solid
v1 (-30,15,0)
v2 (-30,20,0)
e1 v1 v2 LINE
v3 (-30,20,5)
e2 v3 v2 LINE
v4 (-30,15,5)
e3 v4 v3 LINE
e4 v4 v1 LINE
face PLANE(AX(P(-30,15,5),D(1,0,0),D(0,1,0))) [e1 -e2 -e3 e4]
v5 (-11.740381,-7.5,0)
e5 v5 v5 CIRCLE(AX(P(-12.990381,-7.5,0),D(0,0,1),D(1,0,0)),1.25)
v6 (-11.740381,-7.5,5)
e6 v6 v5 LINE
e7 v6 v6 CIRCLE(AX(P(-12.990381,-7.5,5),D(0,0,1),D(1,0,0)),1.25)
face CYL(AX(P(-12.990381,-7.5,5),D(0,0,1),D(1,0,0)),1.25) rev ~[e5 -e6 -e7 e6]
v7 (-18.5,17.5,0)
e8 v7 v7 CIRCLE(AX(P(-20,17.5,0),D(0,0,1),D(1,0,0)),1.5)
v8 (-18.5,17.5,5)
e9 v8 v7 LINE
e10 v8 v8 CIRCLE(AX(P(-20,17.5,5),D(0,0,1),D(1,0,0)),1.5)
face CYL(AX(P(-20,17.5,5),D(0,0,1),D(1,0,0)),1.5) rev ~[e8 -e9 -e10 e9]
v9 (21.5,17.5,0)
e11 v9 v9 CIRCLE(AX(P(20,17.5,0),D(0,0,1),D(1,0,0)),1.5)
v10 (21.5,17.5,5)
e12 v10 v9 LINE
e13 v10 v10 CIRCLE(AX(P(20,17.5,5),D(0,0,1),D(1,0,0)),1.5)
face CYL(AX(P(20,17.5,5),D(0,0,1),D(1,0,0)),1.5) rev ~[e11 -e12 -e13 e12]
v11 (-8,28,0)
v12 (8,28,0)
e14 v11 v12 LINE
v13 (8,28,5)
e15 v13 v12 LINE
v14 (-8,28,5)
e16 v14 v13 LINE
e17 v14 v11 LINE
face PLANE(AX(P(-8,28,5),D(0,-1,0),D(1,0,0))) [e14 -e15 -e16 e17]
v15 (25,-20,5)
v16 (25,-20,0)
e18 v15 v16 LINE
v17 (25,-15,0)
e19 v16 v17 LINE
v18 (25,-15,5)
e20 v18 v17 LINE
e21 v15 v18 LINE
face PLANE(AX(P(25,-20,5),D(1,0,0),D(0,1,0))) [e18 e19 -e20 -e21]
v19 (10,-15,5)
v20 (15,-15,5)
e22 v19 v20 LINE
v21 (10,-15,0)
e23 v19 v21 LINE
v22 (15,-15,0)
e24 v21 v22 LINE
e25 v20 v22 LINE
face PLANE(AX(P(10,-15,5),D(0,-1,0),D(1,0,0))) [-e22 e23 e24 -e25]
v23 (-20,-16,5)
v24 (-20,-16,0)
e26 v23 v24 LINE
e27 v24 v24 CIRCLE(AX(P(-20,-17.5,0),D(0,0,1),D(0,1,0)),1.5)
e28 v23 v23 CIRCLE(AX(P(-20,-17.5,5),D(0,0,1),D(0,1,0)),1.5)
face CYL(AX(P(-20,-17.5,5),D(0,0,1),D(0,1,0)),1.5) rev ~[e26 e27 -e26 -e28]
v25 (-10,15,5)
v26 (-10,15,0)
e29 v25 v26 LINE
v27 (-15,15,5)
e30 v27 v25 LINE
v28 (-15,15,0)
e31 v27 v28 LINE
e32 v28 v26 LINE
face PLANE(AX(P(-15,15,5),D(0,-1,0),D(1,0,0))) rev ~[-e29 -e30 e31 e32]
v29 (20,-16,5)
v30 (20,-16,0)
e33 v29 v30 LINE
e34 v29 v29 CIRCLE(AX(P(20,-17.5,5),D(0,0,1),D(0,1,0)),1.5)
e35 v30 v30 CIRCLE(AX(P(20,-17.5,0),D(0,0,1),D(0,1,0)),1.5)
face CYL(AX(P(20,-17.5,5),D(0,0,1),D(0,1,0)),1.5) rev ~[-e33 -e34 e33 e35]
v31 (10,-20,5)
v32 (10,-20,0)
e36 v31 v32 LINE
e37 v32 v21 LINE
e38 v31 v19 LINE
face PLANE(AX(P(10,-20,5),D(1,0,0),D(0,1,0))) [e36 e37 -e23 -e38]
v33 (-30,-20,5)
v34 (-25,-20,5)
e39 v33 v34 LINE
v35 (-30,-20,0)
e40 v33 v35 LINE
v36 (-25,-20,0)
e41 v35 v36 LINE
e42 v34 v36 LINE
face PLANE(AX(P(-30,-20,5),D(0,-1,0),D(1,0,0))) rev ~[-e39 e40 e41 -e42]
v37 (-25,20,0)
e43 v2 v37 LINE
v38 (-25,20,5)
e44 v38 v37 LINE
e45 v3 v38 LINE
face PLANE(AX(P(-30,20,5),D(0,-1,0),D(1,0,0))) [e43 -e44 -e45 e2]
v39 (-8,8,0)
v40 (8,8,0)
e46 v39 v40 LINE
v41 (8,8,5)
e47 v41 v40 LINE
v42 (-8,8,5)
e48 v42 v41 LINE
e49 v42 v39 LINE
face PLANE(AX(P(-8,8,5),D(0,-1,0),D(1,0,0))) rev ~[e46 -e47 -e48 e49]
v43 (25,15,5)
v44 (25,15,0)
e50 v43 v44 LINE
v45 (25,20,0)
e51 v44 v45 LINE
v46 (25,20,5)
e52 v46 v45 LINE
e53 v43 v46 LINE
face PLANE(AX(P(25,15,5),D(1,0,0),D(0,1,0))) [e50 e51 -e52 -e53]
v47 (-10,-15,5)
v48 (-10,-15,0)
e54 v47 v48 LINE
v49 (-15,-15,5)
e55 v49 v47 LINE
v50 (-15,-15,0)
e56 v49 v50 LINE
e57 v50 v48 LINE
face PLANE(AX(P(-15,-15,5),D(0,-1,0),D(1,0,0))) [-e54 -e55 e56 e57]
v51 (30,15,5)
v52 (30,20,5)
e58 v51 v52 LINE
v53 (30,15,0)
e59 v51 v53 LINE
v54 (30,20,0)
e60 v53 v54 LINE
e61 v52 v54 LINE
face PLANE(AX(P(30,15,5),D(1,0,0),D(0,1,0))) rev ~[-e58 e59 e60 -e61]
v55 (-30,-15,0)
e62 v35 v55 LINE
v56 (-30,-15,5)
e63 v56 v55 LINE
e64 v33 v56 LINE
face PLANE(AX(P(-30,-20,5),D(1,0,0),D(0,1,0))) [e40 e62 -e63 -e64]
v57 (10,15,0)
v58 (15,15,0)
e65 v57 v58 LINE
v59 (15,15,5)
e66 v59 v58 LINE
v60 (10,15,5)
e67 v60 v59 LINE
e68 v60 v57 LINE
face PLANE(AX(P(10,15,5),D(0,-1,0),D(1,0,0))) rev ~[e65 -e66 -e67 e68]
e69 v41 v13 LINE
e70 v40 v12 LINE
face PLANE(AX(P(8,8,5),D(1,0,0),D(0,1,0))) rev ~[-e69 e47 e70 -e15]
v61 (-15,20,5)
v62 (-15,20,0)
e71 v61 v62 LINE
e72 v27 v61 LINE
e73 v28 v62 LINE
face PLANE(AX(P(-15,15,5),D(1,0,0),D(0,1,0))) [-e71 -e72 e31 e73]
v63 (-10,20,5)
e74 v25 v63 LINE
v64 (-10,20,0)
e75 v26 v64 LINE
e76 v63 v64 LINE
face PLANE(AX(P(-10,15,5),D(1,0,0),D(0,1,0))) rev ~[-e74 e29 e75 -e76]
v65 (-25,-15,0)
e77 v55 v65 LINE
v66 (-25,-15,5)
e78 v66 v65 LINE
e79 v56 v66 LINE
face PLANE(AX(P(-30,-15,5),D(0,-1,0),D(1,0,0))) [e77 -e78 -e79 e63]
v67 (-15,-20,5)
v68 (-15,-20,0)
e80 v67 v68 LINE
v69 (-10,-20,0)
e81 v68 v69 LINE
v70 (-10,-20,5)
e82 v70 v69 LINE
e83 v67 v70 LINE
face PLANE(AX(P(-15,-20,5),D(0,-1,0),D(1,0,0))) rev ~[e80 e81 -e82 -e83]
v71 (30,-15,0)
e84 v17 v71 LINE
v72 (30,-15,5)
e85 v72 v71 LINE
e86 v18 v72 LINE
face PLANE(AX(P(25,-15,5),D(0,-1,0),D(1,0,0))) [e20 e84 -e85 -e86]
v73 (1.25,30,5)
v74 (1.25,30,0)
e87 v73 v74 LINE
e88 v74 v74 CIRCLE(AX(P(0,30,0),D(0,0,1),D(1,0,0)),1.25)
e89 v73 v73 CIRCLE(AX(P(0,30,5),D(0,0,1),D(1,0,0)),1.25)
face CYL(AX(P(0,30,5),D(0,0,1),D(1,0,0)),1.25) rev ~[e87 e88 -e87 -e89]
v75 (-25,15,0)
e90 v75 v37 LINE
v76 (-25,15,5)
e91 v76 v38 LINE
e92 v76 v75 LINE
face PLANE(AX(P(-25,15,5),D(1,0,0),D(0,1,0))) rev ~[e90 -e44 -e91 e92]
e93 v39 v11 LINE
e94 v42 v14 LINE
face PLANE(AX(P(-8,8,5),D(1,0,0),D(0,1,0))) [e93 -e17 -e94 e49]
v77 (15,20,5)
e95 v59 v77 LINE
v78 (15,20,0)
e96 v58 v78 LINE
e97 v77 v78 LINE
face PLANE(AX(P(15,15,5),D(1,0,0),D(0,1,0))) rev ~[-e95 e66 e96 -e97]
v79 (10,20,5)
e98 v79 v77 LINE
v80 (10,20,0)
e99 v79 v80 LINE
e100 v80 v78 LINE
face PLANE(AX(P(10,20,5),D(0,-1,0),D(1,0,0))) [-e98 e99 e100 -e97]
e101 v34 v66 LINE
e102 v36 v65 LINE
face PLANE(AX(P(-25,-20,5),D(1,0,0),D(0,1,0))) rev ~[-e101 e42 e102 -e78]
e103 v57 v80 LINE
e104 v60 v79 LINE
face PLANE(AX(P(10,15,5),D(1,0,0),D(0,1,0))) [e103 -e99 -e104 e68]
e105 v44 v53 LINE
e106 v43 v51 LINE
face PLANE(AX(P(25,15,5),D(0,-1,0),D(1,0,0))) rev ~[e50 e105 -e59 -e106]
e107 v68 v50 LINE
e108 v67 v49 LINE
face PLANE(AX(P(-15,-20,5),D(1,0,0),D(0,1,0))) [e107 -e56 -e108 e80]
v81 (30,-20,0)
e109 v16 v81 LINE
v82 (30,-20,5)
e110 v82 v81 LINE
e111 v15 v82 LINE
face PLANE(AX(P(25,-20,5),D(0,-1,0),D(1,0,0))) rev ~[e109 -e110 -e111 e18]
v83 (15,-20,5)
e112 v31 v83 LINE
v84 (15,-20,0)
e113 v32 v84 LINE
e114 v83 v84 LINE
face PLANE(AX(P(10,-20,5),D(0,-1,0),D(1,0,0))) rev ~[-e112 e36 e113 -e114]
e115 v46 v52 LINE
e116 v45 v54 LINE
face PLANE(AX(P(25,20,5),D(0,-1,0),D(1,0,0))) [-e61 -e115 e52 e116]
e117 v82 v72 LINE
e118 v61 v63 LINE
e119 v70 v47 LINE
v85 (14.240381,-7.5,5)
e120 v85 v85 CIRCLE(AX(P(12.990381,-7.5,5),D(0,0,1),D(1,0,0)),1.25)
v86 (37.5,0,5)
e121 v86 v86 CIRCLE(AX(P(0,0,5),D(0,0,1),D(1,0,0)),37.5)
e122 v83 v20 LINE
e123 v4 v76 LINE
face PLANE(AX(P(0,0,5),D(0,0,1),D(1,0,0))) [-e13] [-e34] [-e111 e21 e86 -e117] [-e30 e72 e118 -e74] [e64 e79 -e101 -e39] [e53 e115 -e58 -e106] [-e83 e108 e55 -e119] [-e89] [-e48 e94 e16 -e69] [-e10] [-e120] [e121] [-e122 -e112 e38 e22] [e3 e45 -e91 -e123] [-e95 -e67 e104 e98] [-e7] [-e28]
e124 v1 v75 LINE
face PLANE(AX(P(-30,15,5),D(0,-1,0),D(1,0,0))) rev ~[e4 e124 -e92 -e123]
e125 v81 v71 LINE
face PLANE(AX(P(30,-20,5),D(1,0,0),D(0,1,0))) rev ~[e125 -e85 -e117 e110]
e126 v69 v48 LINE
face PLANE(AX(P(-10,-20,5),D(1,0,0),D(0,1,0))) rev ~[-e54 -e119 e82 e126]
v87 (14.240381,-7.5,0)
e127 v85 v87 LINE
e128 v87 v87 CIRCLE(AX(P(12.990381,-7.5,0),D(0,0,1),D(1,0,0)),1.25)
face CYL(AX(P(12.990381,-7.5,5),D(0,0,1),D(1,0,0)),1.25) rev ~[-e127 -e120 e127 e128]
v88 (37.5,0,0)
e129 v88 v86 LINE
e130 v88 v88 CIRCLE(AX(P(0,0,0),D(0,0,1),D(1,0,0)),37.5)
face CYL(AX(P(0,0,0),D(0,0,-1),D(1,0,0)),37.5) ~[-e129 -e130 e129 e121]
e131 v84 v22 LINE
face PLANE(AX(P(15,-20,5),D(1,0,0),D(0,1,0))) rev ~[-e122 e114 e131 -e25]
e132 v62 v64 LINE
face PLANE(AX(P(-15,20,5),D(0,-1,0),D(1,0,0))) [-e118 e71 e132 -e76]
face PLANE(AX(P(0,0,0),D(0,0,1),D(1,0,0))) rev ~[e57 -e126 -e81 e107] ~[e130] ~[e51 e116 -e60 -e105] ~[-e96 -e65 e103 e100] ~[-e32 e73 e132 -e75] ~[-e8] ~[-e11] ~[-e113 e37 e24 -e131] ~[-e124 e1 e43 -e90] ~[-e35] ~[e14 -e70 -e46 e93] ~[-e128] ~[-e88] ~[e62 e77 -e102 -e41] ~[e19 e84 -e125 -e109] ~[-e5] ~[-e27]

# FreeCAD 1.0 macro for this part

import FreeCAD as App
import Part
import Sketcher

V = App.Vector
Q = App.Units.Quantity

doc = App.newDocument("Part")
params = doc.addObject("Spreadsheet::Sheet", "Params")
for row, (alias, value) in enumerate([
    ("sketch1_diameter", "75 mm"),
    ("pad1_length", "5 mm"),
    ("sketch2_diameter", "3 mm"),
    ("sketch2_diameter2", "2.5 mm"),
    ("sketch2_width", "16 mm"),
    ("sketch2_width2", "5 mm"),
    ("sketch2_height", "20 mm"),
], start=1):
    params.set(f"A{row}", alias)
    params.set(f"B{row}", "=" + value)
    params.setAlias(f"B{row}", alias)

body = doc.addObject("PartDesign::Body", "Body")

# Sketch on XY plane
sketch1 = doc.addObject("Sketcher::SketchObject", "Sketch")
body.addObject(sketch1)
sketch1.AttachmentSupport = (doc.XY_Plane, [""])
sketch1.MapMode = "FlatFace"
sketch1.addGeometry(Part.Circle(V(0, 0, 0), V(0, 0, 1), 38), False)
sketch1.addConstraint(Sketcher.Constraint("Coincident", 0, 3, -1, 1))
sketch1.addConstraint(Sketcher.Constraint("Diameter", 0, Q("75 mm")))
sketch1.setExpression("Constraints[1]", "Params.sketch1_diameter")
pad1 = doc.addObject("PartDesign::Pad", "Pad")
body.addObject(pad1)
pad1.Profile = sketch1
pad1.setExpression("Length", "Params.pad1_length")

# Sketch on XY plane
sketch2 = doc.addObject("Sketcher::SketchObject", "Sketch001")
body.addObject(sketch2)
sketch2.AttachmentSupport = (doc.XY_Plane, [""])
sketch2.MapMode = "FlatFace"
sketch2.AttachmentOffset = App.Placement(V(0, 0, 5), App.Rotation())
sketch2.addGeometry(Part.Circle(V(0, 30, 0), V(0, 0, 1), 1.2), False)
sketch2.addGeometry(Part.Circle(V(13, -7.5, 0), V(0, 0, 1), 1.2), False)
sketch2.addGeometry(Part.Circle(V(-13, -7.5, 0), V(0, 0, 1), 1.2), False)
sketch2.addGeometry(Part.Circle(V(20, 17.5, 0), V(0, 0, 1), 1.5), False)
sketch2.addGeometry(Part.Circle(V(-20, 17.5, 0), V(0, 0, 1), 1.5), False)
sketch2.addGeometry(Part.Circle(V(20, -17.5, 0), V(0, 0, 1), 1.5), False)
sketch2.addGeometry(Part.Circle(V(-20, -17.5, 0), V(0, 0, 1), 1.5), False)
sketch2.addGeometry(Part.LineSegment(V(-8, 28, 0), V(-8, 8, 0)), False)
sketch2.addGeometry(Part.LineSegment(V(-8, 8, 0), V(8, 8, 0)), False)
sketch2.addGeometry(Part.LineSegment(V(8, 8, 0), V(8, 28, 0)), False)
sketch2.addGeometry(Part.LineSegment(V(8, 28, 0), V(-8, 28, 0)), False)
sketch2.addGeometry(Part.LineSegment(V(10, 20, 0), V(10, 15, 0)), False)
sketch2.addGeometry(Part.LineSegment(V(10, 15, 0), V(15, 15, 0)), False)
sketch2.addGeometry(Part.LineSegment(V(15, 15, 0), V(15, 20, 0)), False)
sketch2.addGeometry(Part.LineSegment(V(15, 20, 0), V(10, 20, 0)), False)
sketch2.addGeometry(Part.LineSegment(V(25, 20, 0), V(25, 15, 0)), False)
sketch2.addGeometry(Part.LineSegment(V(25, 15, 0), V(30, 15, 0)), False)
sketch2.addGeometry(Part.LineSegment(V(30, 15, 0), V(30, 20, 0)), False)
sketch2.addGeometry(Part.LineSegment(V(30, 20, 0), V(25, 20, 0)), False)
sketch2.addGeometry(Part.LineSegment(V(-30, 20, 0), V(-30, 15, 0)), False)
sketch2.addGeometry(Part.LineSegment(V(-30, 15, 0), V(-25, 15, 0)), False)
sketch2.addGeometry(Part.LineSegment(V(-25, 15, 0), V(-25, 20, 0)), False)
sketch2.addGeometry(Part.LineSegment(V(-25, 20, 0), V(-30, 20, 0)), False)
sketch2.addGeometry(Part.LineSegment(V(-15, 20, 0), V(-15, 15, 0)), False)
sketch2.addGeometry(Part.LineSegment(V(-15, 15, 0), V(-10, 15, 0)), False)
sketch2.addGeometry(Part.LineSegment(V(-10, 15, 0), V(-10, 20, 0)), False)
sketch2.addGeometry(Part.LineSegment(V(-10, 20, 0), V(-15, 20, 0)), False)
sketch2.addGeometry(Part.LineSegment(V(10, -15, 0), V(10, -20, 0)), False)
sketch2.addGeometry(Part.LineSegment(V(10, -20, 0), V(15, -20, 0)), False)
sketch2.addGeometry(Part.LineSegment(V(15, -20, 0), V(15, -15, 0)), False)
sketch2.addGeometry(Part.LineSegment(V(15, -15, 0), V(10, -15, 0)), False)
sketch2.addGeometry(Part.LineSegment(V(25, -15, 0), V(25, -20, 0)), False)
sketch2.addGeometry(Part.LineSegment(V(25, -20, 0), V(30, -20, 0)), False)
sketch2.addGeometry(Part.LineSegment(V(30, -20, 0), V(30, -15, 0)), False)
sketch2.addGeometry(Part.LineSegment(V(30, -15, 0), V(25, -15, 0)), False)
sketch2.addGeometry(Part.LineSegment(V(-30, -15, 0), V(-30, -20, 0)), False)
sketch2.addGeometry(Part.LineSegment(V(-30, -20, 0), V(-25, -20, 0)), False)
sketch2.addGeometry(Part.LineSegment(V(-25, -20, 0), V(-25, -15, 0)), False)
sketch2.addGeometry(Part.LineSegment(V(-25, -15, 0), V(-30, -15, 0)), False)
sketch2.addGeometry(Part.LineSegment(V(-15, -15, 0), V(-15, -20, 0)), False)
sketch2.addGeometry(Part.LineSegment(V(-15, -20, 0), V(-10, -20, 0)), False)
sketch2.addGeometry(Part.LineSegment(V(-10, -20, 0), V(-10, -15, 0)), False)
sketch2.addGeometry(Part.LineSegment(V(-10, -15, 0), V(-15, -15, 0)), False)
sketch2.addConstraint(Sketcher.Constraint("Coincident", 7, 2, 8, 1))
sketch2.addConstraint(Sketcher.Constraint("Coincident", 8, 2, 9, 1))
sketch2.addConstraint(Sketcher.Constraint("Coincident", 9, 2, 10, 1))
sketch2.addConstraint(Sketcher.Constraint("Coincident", 10, 2, 7, 1))
sketch2.addConstraint(Sketcher.Constraint("Coincident", 11, 2, 12, 1))
sketch2.addConstraint(Sketcher.Constraint("Coincident", 12, 2, 13, 1))
sketch2.addConstraint(Sketcher.Constraint("Coincident", 13, 2, 14, 1))
sketch2.addConstraint(Sketcher.Constraint("Coincident", 14, 2, 11, 1))
sketch2.addConstraint(Sketcher.Constraint("Coincident", 15, 2, 16, 1))
sketch2.addConstraint(Sketcher.Constraint("Coincident", 16, 2, 17, 1))
sketch2.addConstraint(Sketcher.Constraint("Coincident", 17, 2, 18, 1))
sketch2.addConstraint(Sketcher.Constraint("Coincident", 18, 2, 15, 1))
sketch2.addConstraint(Sketcher.Constraint("Coincident", 19, 2, 20, 1))
sketch2.addConstraint(Sketcher.Constraint("Coincident", 20, 2, 21, 1))
sketch2.addConstraint(Sketcher.Constraint("Coincident", 21, 2, 22, 1))
sketch2.addConstraint(Sketcher.Constraint("Coincident", 22, 2, 19, 1))
sketch2.addConstraint(Sketcher.Constraint("Coincident", 23, 2, 24, 1))
sketch2.addConstraint(Sketcher.Constraint("Coincident", 24, 2, 25, 1))
sketch2.addConstraint(Sketcher.Constraint("Coincident", 25, 2, 26, 1))
sketch2.addConstraint(Sketcher.Constraint("Coincident", 26, 2, 23, 1))
sketch2.addConstraint(Sketcher.Constraint("Coincident", 27, 2, 28, 1))
sketch2.addConstraint(Sketcher.Constraint("Coincident", 28, 2, 29, 1))
sketch2.addConstraint(Sketcher.Constraint("Coincident", 29, 2, 30, 1))
sketch2.addConstraint(Sketcher.Constraint("Coincident", 30, 2, 27, 1))
sketch2.addConstraint(Sketcher.Constraint("Coincident", 31, 2, 32, 1))
sketch2.addConstraint(Sketcher.Constraint("Coincident", 32, 2, 33, 1))
sketch2.addConstraint(Sketcher.Constraint("Coincident", 33, 2, 34, 1))
sketch2.addConstraint(Sketcher.Constraint("Coincident", 34, 2, 31, 1))
sketch2.addConstraint(Sketcher.Constraint("Coincident", 35, 2, 36, 1))
sketch2.addConstraint(Sketcher.Constraint("Coincident", 36, 2, 37, 1))
sketch2.addConstraint(Sketcher.Constraint("Coincident", 37, 2, 38, 1))
sketch2.addConstraint(Sketcher.Constraint("Coincident", 38, 2, 35, 1))
sketch2.addConstraint(Sketcher.Constraint("Coincident", 39, 2, 40, 1))
sketch2.addConstraint(Sketcher.Constraint("Coincident", 40, 2, 41, 1))
sketch2.addConstraint(Sketcher.Constraint("Coincident", 41, 2, 42, 1))
sketch2.addConstraint(Sketcher.Constraint("Coincident", 42, 2, 39, 1))
sketch2.addConstraint(Sketcher.Constraint("Vertical", 7))
sketch2.addConstraint(Sketcher.Constraint("Horizontal", 8))
sketch2.addConstraint(Sketcher.Constraint("Vertical", 9))
sketch2.addConstraint(Sketcher.Constraint("Horizontal", 10))
sketch2.addConstraint(Sketcher.Constraint("Vertical", 11))
sketch2.addConstraint(Sketcher.Constraint("Horizontal", 12))
sketch2.addConstraint(Sketcher.Constraint("Vertical", 13))
sketch2.addConstraint(Sketcher.Constraint("Horizontal", 14))
sketch2.addConstraint(Sketcher.Constraint("Vertical", 15))
sketch2.addConstraint(Sketcher.Constraint("Horizontal", 16))
sketch2.addConstraint(Sketcher.Constraint("Vertical", 17))
sketch2.addConstraint(Sketcher.Constraint("Horizontal", 18))
sketch2.addConstraint(Sketcher.Constraint("Vertical", 19))
sketch2.addConstraint(Sketcher.Constraint("Horizontal", 20))
sketch2.addConstraint(Sketcher.Constraint("Vertical", 21))
sketch2.addConstraint(Sketcher.Constraint("Horizontal", 22))
sketch2.addConstraint(Sketcher.Constraint("Vertical", 23))
sketch2.addConstraint(Sketcher.Constraint("Horizontal", 24))
sketch2.addConstraint(Sketcher.Constraint("Vertical", 25))
sketch2.addConstraint(Sketcher.Constraint("Horizontal", 26))
sketch2.addConstraint(Sketcher.Constraint("Vertical", 27))
sketch2.addConstraint(Sketcher.Constraint("Horizontal", 28))
sketch2.addConstraint(Sketcher.Constraint("Vertical", 29))
sketch2.addConstraint(Sketcher.Constraint("Horizontal", 30))
sketch2.addConstraint(Sketcher.Constraint("Vertical", 31))
sketch2.addConstraint(Sketcher.Constraint("Horizontal", 32))
sketch2.addConstraint(Sketcher.Constraint("Vertical", 33))
sketch2.addConstraint(Sketcher.Constraint("Horizontal", 34))
sketch2.addConstraint(Sketcher.Constraint("Vertical", 35))
sketch2.addConstraint(Sketcher.Constraint("Horizontal", 36))
sketch2.addConstraint(Sketcher.Constraint("Vertical", 37))
sketch2.addConstraint(Sketcher.Constraint("Horizontal", 38))
sketch2.addConstraint(Sketcher.Constraint("Vertical", 39))
sketch2.addConstraint(Sketcher.Constraint("Horizontal", 40))
sketch2.addConstraint(Sketcher.Constraint("Vertical", 41))
sketch2.addConstraint(Sketcher.Constraint("Horizontal", 42))
sketch2.addConstraint(Sketcher.Constraint("Equal", 0, 1))
sketch2.addConstraint(Sketcher.Constraint("Equal", 1, 2))
sketch2.addConstraint(Sketcher.Constraint("Equal", 3, 4))
sketch2.addConstraint(Sketcher.Constraint("Equal", 4, 5))
sketch2.addConstraint(Sketcher.Constraint("Equal", 5, 6))
sketch2.addConstraint(Sketcher.Constraint("Symmetric", 4, 3, 5, 3, -1, 1))
sketch2.addConstraint(Sketcher.Constraint("Symmetric", 3, 3, 6, 3, -1, 1))
sketch2.addConstraint(Sketcher.Constraint("Symmetric", 25, 2, 27, 2, -1, 1))
sketch2.addConstraint(Sketcher.Constraint("Symmetric", 23, 2, 29, 2, -1, 1))
sketch2.addConstraint(Sketcher.Constraint("Symmetric", 21, 2, 31, 2, -1, 1))
sketch2.addConstraint(Sketcher.Constraint("Symmetric", 19, 2, 33, 2, -1, 1))
sketch2.addConstraint(Sketcher.Constraint("Symmetric", 17, 2, 35, 2, -1, 1))
sketch2.addConstraint(Sketcher.Constraint("Symmetric", 15, 2, 37, 2, -1, 1))
sketch2.addConstraint(Sketcher.Constraint("Symmetric", 13, 2, 39, 2, -1, 1))
sketch2.addConstraint(Sketcher.Constraint("Symmetric", 11, 2, 41, 2, -1, 1))
sketch2.addConstraint(Sketcher.Constraint("Symmetric", 1, 3, 2, 3, -2))
sketch2.addConstraint(Sketcher.Constraint("Symmetric", 3, 3, 4, 3, -2))
sketch2.addConstraint(Sketcher.Constraint("Symmetric", 16, 2, 19, 2, -2))
sketch2.addConstraint(Sketcher.Constraint("Symmetric", 18, 2, 21, 2, -2))
sketch2.addConstraint(Sketcher.Constraint("Symmetric", 12, 2, 23, 2, -2))
sketch2.addConstraint(Sketcher.Constraint("Symmetric", 14, 2, 25, 2, -2))
sketch2.addConstraint(Sketcher.Constraint("PointOnObject", 0, 3, -2))
sketch2.addConstraint(Sketcher.Constraint("Horizontal", 12, 2, 15, 2))
sketch2.addConstraint(Sketcher.Constraint("Horizontal", 14, 2, 17, 2))
sketch2.addConstraint(Sketcher.Constraint("Equal", 14, 16))
sketch2.addConstraint(Sketcher.Constraint("Equal", 42, 11))
sketch2.addConstraint(Sketcher.Constraint("Diameter", 3, Q("3 mm")))
sketch2.addConstraint(Sketcher.Constraint("Diameter", 0, Q("2.5 mm")))
sketch2.addConstraint(Sketcher.Constraint("DistanceX", 8, 1, 8, 2, Q("16 mm")))
sketch2.addConstraint(Sketcher.Constraint("DistanceX", 12, 1, 12, 2, Q("5 mm")))
sketch2.addConstraint(Sketcher.Constraint("DistanceY", 7, 2, 7, 1, Q("20 mm")))
sketch2.addConstraint(Sketcher.Constraint("DistanceY", -1, 1, 0, 3, Q("30 mm")))
sketch2.addConstraint(Sketcher.Constraint("DistanceX", -1, 1, 3, 3, Q("20 mm")))
sketch2.addConstraint(Sketcher.Constraint("DistanceX", 7, 2, -1, 1, Q("8 mm")))
sketch2.addConstraint(Sketcher.Constraint("DistanceY", -1, 1, 7, 2, Q("8 mm")))
sketch2.addConstraint(Sketcher.Constraint("DistanceX", -1, 1, 11, 2, Q("10 mm")))
sketch2.addConstraint(Sketcher.Constraint("DistanceY", -1, 1, 11, 2, Q("15 mm")))
sketch2.addConstraint(Sketcher.Constraint("DistanceX", -1, 1, 15, 2, Q("25 mm")))
sketch2.addConstraint(Sketcher.Constraint("DistanceY", 1, 3, 3, 3, Q("25 mm")))
sketch2.addConstraint(Sketcher.Constraint("DistanceY", 5, 3, 1, 3, Q("10 mm")))
sketch2.addConstraint(Sketcher.Constraint("DistanceX", -1, 1, 1, 3, Q("12.990381 mm")))
sketch2.setExpression("Constraints[98]", "Params.sketch2_diameter")
sketch2.setExpression("Constraints[99]", "Params.sketch2_diameter2")
sketch2.setExpression("Constraints[100]", "Params.sketch2_width")
sketch2.setExpression("Constraints[101]", "Params.sketch2_width2")
sketch2.setExpression("Constraints[102]", "Params.sketch2_height")
pocket1 = doc.addObject("PartDesign::Pocket", "Pocket")
body.addObject(pocket1)
pocket1.Profile = sketch2
pocket1.Type = "ThroughAll"

doc.recompute()
